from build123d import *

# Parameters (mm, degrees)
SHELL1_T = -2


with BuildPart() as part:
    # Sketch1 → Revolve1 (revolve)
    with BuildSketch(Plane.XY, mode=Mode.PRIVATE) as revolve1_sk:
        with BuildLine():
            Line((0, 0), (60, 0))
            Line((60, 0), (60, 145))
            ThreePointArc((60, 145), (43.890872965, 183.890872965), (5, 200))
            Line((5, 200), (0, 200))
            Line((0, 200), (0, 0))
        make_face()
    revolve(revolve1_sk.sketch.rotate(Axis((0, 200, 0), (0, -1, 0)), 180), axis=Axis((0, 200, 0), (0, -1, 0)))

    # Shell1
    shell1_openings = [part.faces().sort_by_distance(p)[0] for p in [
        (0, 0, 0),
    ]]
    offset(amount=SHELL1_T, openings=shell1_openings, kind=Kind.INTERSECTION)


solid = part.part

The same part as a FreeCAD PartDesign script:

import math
import FreeCAD as App
import Part
import Sketcher
from FreeCAD import Vector


def faces_at(feature, points):
    """Names of the faces that lie closest to the given points."""
    faces = feature.Shape.Faces
    near = lambda p: min(range(len(faces)), key=lambda i: faces[i].distToShape(Part.Vertex(*p))[0])
    return sorted({f"Face{near(p) + 1}" for p in points})

doc = App.newDocument("Part")
body = doc.addObject("PartDesign::Body", "Body")

sketch1 = doc.addObject("Sketcher::SketchObject", "Sketch")
body.addObject(sketch1)
sketch1.AttachmentSupport = (doc.XY_Plane, [""])
sketch1.MapMode = "FlatFace"
sketch1.addGeometry([
    Part.LineSegment(Vector(0, 0, 0), Vector(60, 0, 0)),
    Part.LineSegment(Vector(60, 0, 0), Vector(60, 145, 0)),
    Part.ArcOfCircle(Part.Circle(Vector(5, 145, 0), Vector(0, 0, 1), 55), math.radians(0), math.radians(90)),
    Part.LineSegment(Vector(5, 200, 0), Vector(0, 200, 0)),
    Part.LineSegment(Vector(0, 200, 0), Vector(0, 0, 0)),
], False)
sketch1.addConstraint([
    Sketcher.Constraint("Coincident", 0, 2, 1, 1),
    Sketcher.Constraint("Tangent", 1, 2, 2, 1),
    Sketcher.Constraint("Tangent", 2, 2, 3, 1),
    Sketcher.Constraint("Coincident", 3, 2, 4, 1),
    Sketcher.Constraint("Coincident", 4, 2, 0, 1),
    Sketcher.Constraint("Horizontal", 0),
    Sketcher.Constraint("Vertical", 1),
    Sketcher.Constraint("Horizontal", 3),
    Sketcher.Constraint("Vertical", 4),
    Sketcher.Constraint("Coincident", 4, 2, -1, 1),
    Sketcher.Constraint("Radius", 2, 55.0),
    Sketcher.Constraint("DistanceX", 0, 1, 0, 2, 60.0),
    Sketcher.Constraint("DistanceY", 1, 1, 1, 2, 145.0),
])
revolution = doc.addObject("PartDesign::Revolution", "Revolution")
body.addObject(revolution)
revolution.Profile = sketch1
revolution.ReferenceAxis = (sketch1, ["V_Axis"])
revolution.Angle = 360
doc.recompute()

thickness = doc.addObject("PartDesign::Thickness", "Thickness")
body.addObject(thickness)
thickness.Base = (revolution, faces_at(revolution, [(0, 0, 0)]))
thickness.Value = 2
thickness.Reversed = True
thickness.Join = "Intersection"

doc.recompute()
